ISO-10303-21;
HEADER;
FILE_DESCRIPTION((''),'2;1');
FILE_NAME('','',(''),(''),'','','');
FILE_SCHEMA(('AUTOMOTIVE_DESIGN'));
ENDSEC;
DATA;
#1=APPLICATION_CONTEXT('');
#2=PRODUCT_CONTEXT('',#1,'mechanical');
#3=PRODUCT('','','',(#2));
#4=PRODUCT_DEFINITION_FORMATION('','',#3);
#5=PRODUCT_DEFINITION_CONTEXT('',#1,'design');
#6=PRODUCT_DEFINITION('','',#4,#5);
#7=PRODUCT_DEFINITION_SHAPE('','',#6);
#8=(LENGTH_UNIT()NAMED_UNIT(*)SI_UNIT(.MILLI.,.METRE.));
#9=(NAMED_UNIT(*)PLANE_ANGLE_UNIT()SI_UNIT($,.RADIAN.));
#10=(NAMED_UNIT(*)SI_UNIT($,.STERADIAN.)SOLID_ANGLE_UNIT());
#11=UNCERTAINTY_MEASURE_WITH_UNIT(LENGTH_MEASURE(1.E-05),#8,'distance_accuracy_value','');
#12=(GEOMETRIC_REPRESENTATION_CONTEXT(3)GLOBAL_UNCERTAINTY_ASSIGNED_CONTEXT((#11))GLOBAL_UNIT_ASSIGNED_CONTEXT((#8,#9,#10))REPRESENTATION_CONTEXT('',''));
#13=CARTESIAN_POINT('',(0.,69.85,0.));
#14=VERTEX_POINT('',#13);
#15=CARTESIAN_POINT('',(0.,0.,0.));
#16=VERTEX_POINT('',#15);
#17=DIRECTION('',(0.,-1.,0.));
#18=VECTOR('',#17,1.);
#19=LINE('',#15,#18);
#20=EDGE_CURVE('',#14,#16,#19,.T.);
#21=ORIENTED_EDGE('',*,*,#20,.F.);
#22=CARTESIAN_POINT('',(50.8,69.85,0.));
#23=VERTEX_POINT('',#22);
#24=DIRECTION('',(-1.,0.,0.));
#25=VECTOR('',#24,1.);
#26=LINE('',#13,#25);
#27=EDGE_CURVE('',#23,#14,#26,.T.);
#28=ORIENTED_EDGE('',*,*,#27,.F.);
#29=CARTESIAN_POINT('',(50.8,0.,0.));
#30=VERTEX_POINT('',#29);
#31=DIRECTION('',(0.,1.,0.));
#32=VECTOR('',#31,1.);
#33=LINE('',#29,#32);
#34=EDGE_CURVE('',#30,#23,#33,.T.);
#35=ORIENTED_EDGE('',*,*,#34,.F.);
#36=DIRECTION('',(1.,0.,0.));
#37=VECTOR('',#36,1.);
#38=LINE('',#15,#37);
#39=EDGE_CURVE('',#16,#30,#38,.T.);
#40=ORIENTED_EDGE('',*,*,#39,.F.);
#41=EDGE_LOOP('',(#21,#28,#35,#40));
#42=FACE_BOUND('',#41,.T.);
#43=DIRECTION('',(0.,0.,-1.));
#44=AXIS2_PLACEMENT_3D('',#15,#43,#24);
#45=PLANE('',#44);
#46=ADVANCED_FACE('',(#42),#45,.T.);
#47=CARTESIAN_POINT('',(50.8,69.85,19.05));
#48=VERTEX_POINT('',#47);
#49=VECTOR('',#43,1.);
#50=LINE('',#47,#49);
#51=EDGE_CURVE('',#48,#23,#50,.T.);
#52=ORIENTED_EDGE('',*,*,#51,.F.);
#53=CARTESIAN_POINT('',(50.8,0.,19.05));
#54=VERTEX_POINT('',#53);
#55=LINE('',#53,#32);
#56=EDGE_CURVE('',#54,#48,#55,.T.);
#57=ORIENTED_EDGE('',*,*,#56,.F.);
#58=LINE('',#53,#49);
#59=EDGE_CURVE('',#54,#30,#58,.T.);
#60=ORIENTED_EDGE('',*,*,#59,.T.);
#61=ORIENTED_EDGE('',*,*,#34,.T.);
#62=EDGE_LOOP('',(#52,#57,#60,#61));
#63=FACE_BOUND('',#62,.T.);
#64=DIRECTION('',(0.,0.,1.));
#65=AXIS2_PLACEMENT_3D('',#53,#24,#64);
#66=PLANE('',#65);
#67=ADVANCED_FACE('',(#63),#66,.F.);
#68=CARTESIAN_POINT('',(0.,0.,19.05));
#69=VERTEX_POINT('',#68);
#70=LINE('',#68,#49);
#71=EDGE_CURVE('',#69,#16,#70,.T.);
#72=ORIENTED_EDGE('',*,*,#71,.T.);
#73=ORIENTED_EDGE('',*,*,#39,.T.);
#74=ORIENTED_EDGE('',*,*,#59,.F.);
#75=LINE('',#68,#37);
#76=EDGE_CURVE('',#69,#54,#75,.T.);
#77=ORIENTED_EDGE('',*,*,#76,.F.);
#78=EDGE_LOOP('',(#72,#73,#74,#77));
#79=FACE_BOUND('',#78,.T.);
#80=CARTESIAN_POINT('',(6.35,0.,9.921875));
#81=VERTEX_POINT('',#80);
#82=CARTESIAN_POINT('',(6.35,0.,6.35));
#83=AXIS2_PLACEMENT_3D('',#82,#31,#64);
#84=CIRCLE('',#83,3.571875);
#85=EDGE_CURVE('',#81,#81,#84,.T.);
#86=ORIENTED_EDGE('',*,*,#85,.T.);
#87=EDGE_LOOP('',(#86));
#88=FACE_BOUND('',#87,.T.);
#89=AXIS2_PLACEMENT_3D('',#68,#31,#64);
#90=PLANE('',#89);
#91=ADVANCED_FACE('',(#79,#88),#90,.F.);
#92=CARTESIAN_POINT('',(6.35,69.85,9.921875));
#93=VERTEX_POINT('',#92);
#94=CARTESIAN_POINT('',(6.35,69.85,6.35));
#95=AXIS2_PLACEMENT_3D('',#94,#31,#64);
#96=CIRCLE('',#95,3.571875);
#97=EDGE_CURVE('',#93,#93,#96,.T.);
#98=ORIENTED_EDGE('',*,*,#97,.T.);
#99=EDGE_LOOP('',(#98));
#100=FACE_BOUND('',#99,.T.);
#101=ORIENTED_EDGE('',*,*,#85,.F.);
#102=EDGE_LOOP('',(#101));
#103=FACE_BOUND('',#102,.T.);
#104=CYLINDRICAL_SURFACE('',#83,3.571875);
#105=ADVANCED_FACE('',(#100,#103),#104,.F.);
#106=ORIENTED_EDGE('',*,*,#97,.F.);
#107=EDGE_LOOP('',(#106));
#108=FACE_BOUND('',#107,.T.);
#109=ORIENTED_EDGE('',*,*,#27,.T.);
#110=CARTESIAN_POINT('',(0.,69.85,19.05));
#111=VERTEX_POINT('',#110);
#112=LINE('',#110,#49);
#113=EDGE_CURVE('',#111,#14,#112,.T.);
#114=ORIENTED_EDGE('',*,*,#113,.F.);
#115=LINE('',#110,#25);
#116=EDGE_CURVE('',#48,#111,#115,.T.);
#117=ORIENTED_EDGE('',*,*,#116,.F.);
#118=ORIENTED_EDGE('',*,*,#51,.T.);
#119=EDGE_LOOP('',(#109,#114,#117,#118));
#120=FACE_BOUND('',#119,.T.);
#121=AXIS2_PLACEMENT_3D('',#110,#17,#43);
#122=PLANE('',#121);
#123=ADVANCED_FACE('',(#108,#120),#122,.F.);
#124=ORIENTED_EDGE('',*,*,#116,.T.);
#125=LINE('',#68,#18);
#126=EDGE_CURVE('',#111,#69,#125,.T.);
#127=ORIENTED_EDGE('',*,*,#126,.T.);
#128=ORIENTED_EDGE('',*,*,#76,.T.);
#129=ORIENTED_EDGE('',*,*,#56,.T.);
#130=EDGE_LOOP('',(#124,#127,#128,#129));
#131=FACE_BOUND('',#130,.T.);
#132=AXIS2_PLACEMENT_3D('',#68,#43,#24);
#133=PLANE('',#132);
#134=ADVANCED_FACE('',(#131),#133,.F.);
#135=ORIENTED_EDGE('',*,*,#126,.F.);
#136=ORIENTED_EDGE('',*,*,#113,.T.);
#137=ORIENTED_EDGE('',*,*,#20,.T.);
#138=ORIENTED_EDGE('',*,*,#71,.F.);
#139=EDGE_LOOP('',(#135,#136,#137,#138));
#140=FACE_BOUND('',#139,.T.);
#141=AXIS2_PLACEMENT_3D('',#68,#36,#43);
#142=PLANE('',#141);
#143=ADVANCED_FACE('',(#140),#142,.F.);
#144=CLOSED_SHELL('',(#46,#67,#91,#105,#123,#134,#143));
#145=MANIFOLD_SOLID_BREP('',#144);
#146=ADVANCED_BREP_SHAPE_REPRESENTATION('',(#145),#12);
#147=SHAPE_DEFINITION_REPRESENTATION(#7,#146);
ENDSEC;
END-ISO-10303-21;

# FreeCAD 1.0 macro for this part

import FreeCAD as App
import Part
import Sketcher

V = App.Vector
Q = App.Units.Quantity

doc = App.newDocument("Part")
body = doc.addObject("PartDesign::Body", "Body")

sketch1 = body.newObject("Sketcher::SketchObject", "Sketch")
sketch1.AttachmentSupport = (doc.getObject("XY_Plane"), [""])
sketch1.MapMode = "FlatFace"
sketch1.addGeometry([
    Part.LineSegment(V(0, 69.85, 0), V(0, 0, 0)),
    Part.LineSegment(V(0, 0, 0), V(50.8, 0, 0)),
    Part.LineSegment(V(50.8, 0, 0), V(50.8, 69.85, 0)),
    Part.LineSegment(V(50.8, 69.85, 0), V(0, 69.85, 0)),
], False)
sketch1.addConstraint([
    Sketcher.Constraint("Coincident", 0, 2, 1, 1),
    Sketcher.Constraint("Coincident", 1, 2, 2, 1),
    Sketcher.Constraint("Coincident", 2, 2, 3, 1),
    Sketcher.Constraint("Coincident", 3, 2, 0, 1),
    Sketcher.Constraint("Vertical", 0),
    Sketcher.Constraint("Horizontal", 1),
    Sketcher.Constraint("Vertical", 2),
    Sketcher.Constraint("Horizontal", 3),
    Sketcher.Constraint("Coincident", 0, 2, -1, 1),
    Sketcher.Constraint("DistanceX", 1, 1, 1, 2, Q("2 in")),
    Sketcher.Constraint("DistanceY", 0, 2, 0, 1, Q("2.75 in")),
])
pad1 = body.newObject("PartDesign::Pad", "Pad")
pad1.Profile = sketch1
pad1.Length = Q("0.75 in")

sketch2 = body.newObject("Sketcher::SketchObject", "Sketch001")
sketch2.AttachmentSupport = (doc.getObject("XZ_Plane"), [""])
sketch2.MapMode = "FlatFace"
sketch2.AttachmentOffset = App.Placement(V(0, 0, -2.75 * 25.4), App.Rotation())
sketch2.addGeometry(Part.Circle(V(6.35, 6.35, 0), V(0, 0, 1), 3.571875), False)
sketch2.addConstraint([
    Sketcher.Constraint("Diameter", 0, Q("0.28125 in")),
    Sketcher.Constraint("DistanceX", -1, 1, 0, 3, Q("0.25 in")),
    Sketcher.Constraint("DistanceY", -1, 1, 0, 3, Q("0.25 in")),
])
pocket1 = body.newObject("PartDesign::Pocket", "Pocket")
pocket1.Profile = sketch2
pocket1.Type = "ThroughAll"
pocket1.Reversed = True

doc.recompute()
